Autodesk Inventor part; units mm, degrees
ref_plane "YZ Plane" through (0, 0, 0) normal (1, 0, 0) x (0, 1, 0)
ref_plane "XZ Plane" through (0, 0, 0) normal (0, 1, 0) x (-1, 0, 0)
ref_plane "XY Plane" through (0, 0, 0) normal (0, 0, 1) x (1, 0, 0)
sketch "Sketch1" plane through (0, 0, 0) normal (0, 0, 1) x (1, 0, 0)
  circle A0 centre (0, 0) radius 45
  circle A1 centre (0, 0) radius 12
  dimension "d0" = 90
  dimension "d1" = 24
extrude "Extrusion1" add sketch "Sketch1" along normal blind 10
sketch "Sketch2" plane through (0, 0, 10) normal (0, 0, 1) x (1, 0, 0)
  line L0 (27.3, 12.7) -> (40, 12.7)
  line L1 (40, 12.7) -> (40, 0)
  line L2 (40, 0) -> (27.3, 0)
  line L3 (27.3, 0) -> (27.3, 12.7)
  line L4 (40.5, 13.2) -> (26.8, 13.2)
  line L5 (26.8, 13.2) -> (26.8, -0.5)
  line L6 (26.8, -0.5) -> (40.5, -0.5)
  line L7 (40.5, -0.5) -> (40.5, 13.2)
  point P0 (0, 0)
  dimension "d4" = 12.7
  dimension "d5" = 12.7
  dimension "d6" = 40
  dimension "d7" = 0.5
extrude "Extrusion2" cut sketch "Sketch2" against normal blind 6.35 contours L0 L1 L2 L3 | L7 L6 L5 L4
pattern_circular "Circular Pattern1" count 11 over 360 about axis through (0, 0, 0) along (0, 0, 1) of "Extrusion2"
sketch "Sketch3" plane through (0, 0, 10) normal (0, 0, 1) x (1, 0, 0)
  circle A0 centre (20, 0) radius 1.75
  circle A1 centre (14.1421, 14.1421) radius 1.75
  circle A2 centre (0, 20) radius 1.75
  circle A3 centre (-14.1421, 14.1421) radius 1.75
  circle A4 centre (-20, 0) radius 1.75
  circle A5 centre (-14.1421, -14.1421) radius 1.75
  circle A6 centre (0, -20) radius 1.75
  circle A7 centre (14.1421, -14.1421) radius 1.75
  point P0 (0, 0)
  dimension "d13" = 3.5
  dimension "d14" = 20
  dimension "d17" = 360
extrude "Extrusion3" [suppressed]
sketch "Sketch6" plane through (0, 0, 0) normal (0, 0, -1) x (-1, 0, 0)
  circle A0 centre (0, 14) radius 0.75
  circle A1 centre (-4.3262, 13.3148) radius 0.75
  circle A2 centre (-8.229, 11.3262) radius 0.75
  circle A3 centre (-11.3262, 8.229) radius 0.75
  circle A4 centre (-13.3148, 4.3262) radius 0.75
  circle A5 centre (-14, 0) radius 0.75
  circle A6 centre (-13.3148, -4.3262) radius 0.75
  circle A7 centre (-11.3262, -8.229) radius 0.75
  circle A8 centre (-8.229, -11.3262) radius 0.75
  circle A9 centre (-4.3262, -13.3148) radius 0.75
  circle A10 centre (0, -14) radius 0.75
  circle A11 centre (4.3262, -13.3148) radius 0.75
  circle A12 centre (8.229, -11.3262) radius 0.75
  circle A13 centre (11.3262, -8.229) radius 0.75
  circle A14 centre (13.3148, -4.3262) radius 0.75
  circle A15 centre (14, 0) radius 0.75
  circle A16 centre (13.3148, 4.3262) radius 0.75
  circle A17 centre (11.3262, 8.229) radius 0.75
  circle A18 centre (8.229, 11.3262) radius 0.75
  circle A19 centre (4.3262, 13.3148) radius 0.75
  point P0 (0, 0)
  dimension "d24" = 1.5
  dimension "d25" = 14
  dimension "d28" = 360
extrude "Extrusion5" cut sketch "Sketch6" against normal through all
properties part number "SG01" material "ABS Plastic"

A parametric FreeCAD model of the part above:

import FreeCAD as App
import Part
import Sketcher

doc = App.newDocument("Part")
params = doc.addObject("Spreadsheet::Sheet", "Params")
for row, (alias, value) in enumerate([
    ("sketch1_diameter", "90 mm"),
    ("sketch1_diameter2", "24 mm"),
    ("pad1_length", "10 mm"),
    ("sketch2_width", "13.7 mm"),
    ("pocket1_length", "6.35 mm"),
    ("sketch3_diameter", "1.5 mm"),
], start=1):
    params.set(f"A{row}", alias)
    params.set(f"B{row}", "=" + value)
    params.setAlias(f"B{row}", alias)

body = doc.addObject("PartDesign::Body", "Body")

# Sketch on XY plane
sketch1 = body.newObject("Sketcher::SketchObject", "Sketch")
sketch1.AttachmentSupport = (doc.getObject("XY_Plane"), [""])
sketch1.MapMode = "FlatFace"
sketch1.addGeometry([
    Part.Circle(App.Vector(0, 0, 0), App.Vector(0, 0, 1), 45),
    Part.Circle(App.Vector(0, 0, 0), App.Vector(0, 0, 1), 12),
], False)
sketch1.addConstraint([
    Sketcher.Constraint("Coincident", 0, 3, -1, 1),
    Sketcher.Constraint("Coincident", 1, 3, -1, 1),
    Sketcher.Constraint("Diameter", 0, 90.0),
    Sketcher.Constraint("Diameter", 1, 24.0),
])
sketch1.setExpression("Constraints[2]", "Params.sketch1_diameter")
sketch1.setExpression("Constraints[3]", "Params.sketch1_diameter2")
pad1 = body.newObject("PartDesign::Pad", "Pad")
pad1.Profile = sketch1
pad1.setExpression("Length", "Params.pad1_length")

# Sketch on XY plane
sketch2 = body.newObject("Sketcher::SketchObject", "Sketch001")
sketch2.AttachmentSupport = (doc.getObject("XY_Plane"), [""])
sketch2.MapMode = "FlatFace"
sketch2.AttachmentOffset = App.Placement(App.Vector(0, 0, 10), App.Rotation())
sketch2.addGeometry([
    Part.LineSegment(App.Vector(40, 0, 0), App.Vector(40, 13, 0)),
    Part.LineSegment(App.Vector(40, 13, 0), App.Vector(27, 13, 0)),
    Part.LineSegment(App.Vector(27, 13, 0), App.Vector(27, 0, 0)),
    Part.LineSegment(App.Vector(27, 0, 0), App.Vector(40, 0, 0)),
], False)
sketch2.addConstraint([
    Sketcher.Constraint("Coincident", 0, 2, 1, 1),
    Sketcher.Constraint("Coincident", 1, 2, 2, 1),
    Sketcher.Constraint("Coincident", 2, 2, 3, 1),
    Sketcher.Constraint("Coincident", 3, 2, 0, 1),
    Sketcher.Constraint("Vertical", 0),
    Sketcher.Constraint("Horizontal", 1),
    Sketcher.Constraint("Vertical", 2),
    Sketcher.Constraint("Horizontal", 3),
    Sketcher.Constraint("Equal", 3, 0),
    Sketcher.Constraint("DistanceY", 2, 2, -1, 1, 0.5),
    Sketcher.Constraint("DistanceX", 1, 2, 1, 1, 13.7),
    Sketcher.Constraint("DistanceX", -1, 1, 0, 2, 40.5),
])
sketch2.setExpression("Constraints[10]", "Params.sketch2_width")
pocket1 = body.newObject("PartDesign::Pocket", "Pocket")
pocket1.Profile = sketch2
pocket1.setExpression("Length", "Params.pocket1_length")
doc.recompute()

polarpattern = body.newObject("PartDesign::PolarPattern", "PolarPattern")
polarpattern.Originals = [pocket1]
polarpattern.Axis = (doc.getObject("Z_Axis"), [""])
polarpattern.Angle = 360
polarpattern.Occurrences = 11
body.Tip = polarpattern

# Sketch on XY plane
sketch3 = body.newObject("Sketcher::SketchObject", "Sketch002")
sketch3.AttachmentSupport = (doc.getObject("XY_Plane"), [""])
sketch3.MapMode = "FlatFace"
sketch3.addGeometry([
    Part.Circle(App.Vector(0, 14, 0), App.Vector(0, 0, 1), 0.8),  # 0
    Part.Circle(App.Vector(4.3, 13.3, 0), App.Vector(0, 0, 1), 0.8),  # 1
    Part.Circle(App.Vector(8.2, 11.3, 0), App.Vector(0, 0, 1), 0.8),  # 2
    Part.Circle(App.Vector(11.3, 8.2, 0), App.Vector(0, 0, 1), 0.8),  # 3
    Part.Circle(App.Vector(13.3, 4.3, 0), App.Vector(0, 0, 1), 0.8),  # 4
    Part.Circle(App.Vector(14, 0, 0), App.Vector(0, 0, 1), 0.8),  # 5
    Part.Circle(App.Vector(13.3, -4.3, 0), App.Vector(0, 0, 1), 0.8),  # 6
    Part.Circle(App.Vector(11.3, -8.2, 0), App.Vector(0, 0, 1), 0.8),  # 7
    Part.Circle(App.Vector(8.2, -11.3, 0), App.Vector(0, 0, 1), 0.8),  # 8
    Part.Circle(App.Vector(4.3, -13.3, 0), App.Vector(0, 0, 1), 0.8),  # 9
    Part.Circle(App.Vector(0, -14, 0), App.Vector(0, 0, 1), 0.8),  # 10
    Part.Circle(App.Vector(-4.3, -13.3, 0), App.Vector(0, 0, 1), 0.8),  # 11
    Part.Circle(App.Vector(-8.2, -11.3, 0), App.Vector(0, 0, 1), 0.8),  # 12
    Part.Circle(App.Vector(-11.3, -8.2, 0), App.Vector(0, 0, 1), 0.8),  # 13
    Part.Circle(App.Vector(-13.3, -4.3, 0), App.Vector(0, 0, 1), 0.8),  # 14
    Part.Circle(App.Vector(-14, 0, 0), App.Vector(0, 0, 1), 0.8),  # 15
    Part.Circle(App.Vector(-13.3, 4.3, 0), App.Vector(0, 0, 1), 0.8),  # 16
    Part.Circle(App.Vector(-11.3, 8.2, 0), App.Vector(0, 0, 1), 0.8),  # 17
    Part.Circle(App.Vector(-8.2, 11.3, 0), App.Vector(0, 0, 1), 0.8),  # 18
    Part.Circle(App.Vector(-4.3, 13.3, 0), App.Vector(0, 0, 1), 0.8),  # 19
], False)
sketch3.addConstraint([
    Sketcher.Constraint("Equal", 0, 1),
    Sketcher.Constraint("Equal", 1, 2),
    Sketcher.Constraint("Equal", 2, 3),
    Sketcher.Constraint("Equal", 3, 4),
    Sketcher.Constraint("Equal", 4, 5),
    Sketcher.Constraint("Equal", 5, 6),
    Sketcher.Constraint("Equal", 6, 7),
    Sketcher.Constraint("Equal", 7, 8),
    Sketcher.Constraint("Equal", 8, 9),
    Sketcher.Constraint("Equal", 9, 10),
    Sketcher.Constraint("Equal", 10, 11),
    Sketcher.Constraint("Equal", 11, 12),
    Sketcher.Constraint("Equal", 12, 13),
    Sketcher.Constraint("Equal", 13, 14),
    Sketcher.Constraint("Equal", 14, 15),
    Sketcher.Constraint("Equal", 15, 16),
    Sketcher.Constraint("Equal", 16, 17),
    Sketcher.Constraint("Equal", 17, 18),
    Sketcher.Constraint("Equal", 18, 19),
    Sketcher.Constraint("Symmetric", 0, 3, 10, 3, -1, 1),
    Sketcher.Constraint("Symmetric", 1, 3, 11, 3, -1, 1),
    Sketcher.Constraint("Symmetric", 2, 3, 12, 3, -1, 1),
    Sketcher.Constraint("Symmetric", 3, 3, 13, 3, -1, 1),
    Sketcher.Constraint("Symmetric", 4, 3, 14, 3, -1, 1),
    Sketcher.Constraint("Symmetric", 5, 3, 15, 3, -1, 1),
    Sketcher.Constraint("Symmetric", 6, 3, 16, 3, -1, 1),
    Sketcher.Constraint("Symmetric", 7, 3, 17, 3, -1, 1),
    Sketcher.Constraint("Symmetric", 8, 3, 18, 3, -1, 1),
    Sketcher.Constraint("Symmetric", 9, 3, 19, 3, -1, 1),
    Sketcher.Constraint("Symmetric", 9, 3, 11, 3, -2),
    Sketcher.Constraint("Symmetric", 8, 3, 12, 3, -2),
    Sketcher.Constraint("Symmetric", 7, 3, 13, 3, -2),
    Sketcher.Constraint("Symmetric", 6, 3, 14, 3, -2),
    Sketcher.Constraint("PointOnObject", 0, 3, -2),
    Sketcher.Constraint("PointOnObject", 5, 3, -1),
    Sketcher.Constraint("Diameter", 0, 1.5),
    Sketcher.Constraint("DistanceY", -1, 1, 0, 3, 14.0),
    Sketcher.Constraint("DistanceX", -1, 1, 5, 3, 14.0),
    Sketcher.Constraint("DistanceX", 1, 3, 3, 3, 7.0),
    Sketcher.Constraint("DistanceY", 4, 3, 2, 3, 7.0),
    Sketcher.Constraint("DistanceX", -1, 1, 2, 3, 8.229),
    Sketcher.Constraint("DistanceY", -1, 1, 3, 3, 8.229),
    Sketcher.Constraint("DistanceY", 6, 3, 1, 3, 17.641),
    Sketcher.Constraint("DistanceX", 11, 3, 6, 3, 17.641),
    Sketcher.Constraint("DistanceX", -1, 1, 1, 3, 4.3262),
    Sketcher.Constraint("DistanceY", -1, 1, 1, 3, 13.3148),
])
sketch3.setExpression("Constraints[35]", "Params.sketch3_diameter")
pocket2 = body.newObject("PartDesign::Pocket", "Pocket001")
pocket2.Profile = sketch3
pocket2.Type = "ThroughAll"
pocket2.Reversed = True

doc.recompute()
